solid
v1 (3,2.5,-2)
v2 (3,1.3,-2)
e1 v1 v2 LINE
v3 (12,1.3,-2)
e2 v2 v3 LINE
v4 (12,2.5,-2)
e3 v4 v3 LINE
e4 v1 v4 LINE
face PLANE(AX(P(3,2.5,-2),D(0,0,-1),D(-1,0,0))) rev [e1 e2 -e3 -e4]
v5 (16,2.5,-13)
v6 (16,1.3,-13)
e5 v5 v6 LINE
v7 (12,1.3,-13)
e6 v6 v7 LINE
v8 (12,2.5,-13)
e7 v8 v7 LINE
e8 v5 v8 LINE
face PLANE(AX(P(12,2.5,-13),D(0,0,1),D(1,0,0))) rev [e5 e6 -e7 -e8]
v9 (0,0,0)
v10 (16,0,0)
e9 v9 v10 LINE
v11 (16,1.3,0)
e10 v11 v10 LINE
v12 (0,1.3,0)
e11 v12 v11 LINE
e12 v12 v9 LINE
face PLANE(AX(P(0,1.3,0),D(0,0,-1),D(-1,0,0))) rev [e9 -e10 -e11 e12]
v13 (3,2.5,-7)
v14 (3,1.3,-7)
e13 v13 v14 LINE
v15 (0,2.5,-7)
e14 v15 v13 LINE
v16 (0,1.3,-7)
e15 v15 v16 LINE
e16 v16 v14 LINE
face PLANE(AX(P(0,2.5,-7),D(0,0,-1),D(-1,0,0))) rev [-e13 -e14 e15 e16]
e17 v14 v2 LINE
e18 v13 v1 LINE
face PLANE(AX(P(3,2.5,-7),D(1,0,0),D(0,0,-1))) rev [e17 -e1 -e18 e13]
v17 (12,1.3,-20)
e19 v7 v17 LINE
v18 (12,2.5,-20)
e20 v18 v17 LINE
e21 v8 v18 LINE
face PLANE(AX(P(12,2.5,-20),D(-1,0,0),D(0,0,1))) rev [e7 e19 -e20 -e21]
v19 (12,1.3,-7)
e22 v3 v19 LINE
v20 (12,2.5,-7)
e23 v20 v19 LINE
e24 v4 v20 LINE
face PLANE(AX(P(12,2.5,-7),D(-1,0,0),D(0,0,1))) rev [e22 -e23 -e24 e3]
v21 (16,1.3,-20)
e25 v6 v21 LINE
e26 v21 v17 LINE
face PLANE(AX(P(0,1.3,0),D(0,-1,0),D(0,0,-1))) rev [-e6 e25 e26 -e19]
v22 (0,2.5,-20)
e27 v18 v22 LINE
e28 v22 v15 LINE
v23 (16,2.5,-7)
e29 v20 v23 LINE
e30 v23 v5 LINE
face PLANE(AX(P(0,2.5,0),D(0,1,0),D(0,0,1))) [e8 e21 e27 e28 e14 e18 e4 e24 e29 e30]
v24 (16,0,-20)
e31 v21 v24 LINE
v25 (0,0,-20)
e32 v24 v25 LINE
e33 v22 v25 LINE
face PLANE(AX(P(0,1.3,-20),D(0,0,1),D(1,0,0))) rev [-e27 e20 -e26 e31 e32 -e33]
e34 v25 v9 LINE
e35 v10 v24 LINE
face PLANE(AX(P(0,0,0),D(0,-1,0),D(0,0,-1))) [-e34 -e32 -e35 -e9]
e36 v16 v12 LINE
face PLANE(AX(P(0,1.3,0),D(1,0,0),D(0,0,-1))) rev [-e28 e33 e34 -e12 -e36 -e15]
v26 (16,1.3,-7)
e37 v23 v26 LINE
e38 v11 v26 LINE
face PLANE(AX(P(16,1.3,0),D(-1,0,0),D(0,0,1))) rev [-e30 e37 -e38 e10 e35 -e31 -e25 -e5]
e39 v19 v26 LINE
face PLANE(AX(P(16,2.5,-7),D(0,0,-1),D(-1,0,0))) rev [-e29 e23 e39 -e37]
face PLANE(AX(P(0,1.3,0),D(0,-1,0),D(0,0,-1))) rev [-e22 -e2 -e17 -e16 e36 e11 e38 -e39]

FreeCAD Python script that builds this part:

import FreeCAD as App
import Part
import Sketcher
Q = App.Units.Quantity


def add_polygon(sketch, points):
    """Adds a closed chain of lines whose ends are joined by coincident constraints."""
    first, n = sketch.GeometryCount, len(points)
    for a, b in zip(points, points[1:] + points[:1]):
        sketch.addGeometry(Part.LineSegment(App.Vector(*a, 0), App.Vector(*b, 0)), False)
    for i in range(n):
        sketch.addConstraint(Sketcher.Constraint("Coincident", first + i, 2, first + (i + 1) % n, 1))

doc = App.newDocument("Part")
body = doc.addObject("PartDesign::Body", "Body")

# Sketch on XZ plane
sketch1 = body.newObject("Sketcher::SketchObject", "Sketch")
sketch1.AttachmentSupport = (doc.getObject("XZ_Plane"), [""])
sketch1.MapMode = "FlatFace"
add_polygon(sketch1, [(0, -20), (0, 0), (16, 0), (16, -20)])  # lines 0-3
sketch1.addConstraint(Sketcher.Constraint("Vertical", 0))
sketch1.addConstraint(Sketcher.Constraint("Horizontal", 1))
sketch1.addConstraint(Sketcher.Constraint("Vertical", 2))
sketch1.addConstraint(Sketcher.Constraint("Horizontal", 3))
sketch1.addConstraint(Sketcher.Constraint("Coincident", 0, 2, -1, 1))
sketch1.addConstraint(Sketcher.Constraint("DistanceX", 1, 1, 1, 2, Q("16 mm")))
sketch1.addConstraint(Sketcher.Constraint("DistanceY", 0, 1, 0, 2, Q("20 mm")))
pad1 = body.newObject("PartDesign::Pad", "Pad")
pad1.Profile = sketch1
pad1.Length = 1.3
pad1.Reversed = True

# Sketch on XZ plane
sketch2 = body.newObject("Sketcher::SketchObject", "Sketch001")
sketch2.AttachmentSupport = (doc.getObject("XZ_Plane"), [""])
sketch2.MapMode = "FlatFace"
sketch2.AttachmentOffset = App.Placement(App.Vector(0, 0, -1.3), App.Rotation())
add_polygon(sketch2, [(3, -7), (3, -2), (12, -2), (12, -7), (16, -7), (16, -13), (12, -13), (12, -20), (0, -20), (0, -7)])  # lines 0-9
sketch2.addConstraint(Sketcher.Constraint("Vertical", 0))
sketch2.addConstraint(Sketcher.Constraint("Horizontal", 1))
sketch2.addConstraint(Sketcher.Constraint("Vertical", 2))
sketch2.addConstraint(Sketcher.Constraint("Horizontal", 3))
sketch2.addConstraint(Sketcher.Constraint("Vertical", 4))
sketch2.addConstraint(Sketcher.Constraint("Horizontal", 5))
sketch2.addConstraint(Sketcher.Constraint("Vertical", 6))
sketch2.addConstraint(Sketcher.Constraint("Horizontal", 7))
sketch2.addConstraint(Sketcher.Constraint("Vertical", 8))
sketch2.addConstraint(Sketcher.Constraint("Horizontal", 9))
sketch2.addConstraint(Sketcher.Constraint("PointOnObject", 7, 2, -2))
sketch2.addConstraint(Sketcher.Constraint("Horizontal", 3, 2, 8, 2))
sketch2.addConstraint(Sketcher.Constraint("Vertical", 2, 2, 5, 2))
sketch2.addConstraint(Sketcher.Constraint("DistanceX", 1, 1, 1, 2, Q("9 mm")))
sketch2.addConstraint(Sketcher.Constraint("DistanceX", 3, 1, 3, 2, Q("4 mm")))
sketch2.addConstraint(Sketcher.Constraint("DistanceX", 7, 2, 7, 1, Q("12 mm")))
sketch2.addConstraint(Sketcher.Constraint("DistanceY", 0, 1, 0, 2, Q("5 mm")))
sketch2.addConstraint(Sketcher.Constraint("DistanceY", 4, 2, 4, 1, Q("6 mm")))
sketch2.addConstraint(Sketcher.Constraint("DistanceY", 6, 2, 6, 1, Q("7 mm")))
sketch2.addConstraint(Sketcher.Constraint("DistanceY", 0, 2, -1, 1, Q("2 mm")))
pad2 = body.newObject("PartDesign::Pad", "Pad001")
pad2.Profile = sketch2
pad2.Length = 1.2
pad2.Reversed = True

doc.recompute()
